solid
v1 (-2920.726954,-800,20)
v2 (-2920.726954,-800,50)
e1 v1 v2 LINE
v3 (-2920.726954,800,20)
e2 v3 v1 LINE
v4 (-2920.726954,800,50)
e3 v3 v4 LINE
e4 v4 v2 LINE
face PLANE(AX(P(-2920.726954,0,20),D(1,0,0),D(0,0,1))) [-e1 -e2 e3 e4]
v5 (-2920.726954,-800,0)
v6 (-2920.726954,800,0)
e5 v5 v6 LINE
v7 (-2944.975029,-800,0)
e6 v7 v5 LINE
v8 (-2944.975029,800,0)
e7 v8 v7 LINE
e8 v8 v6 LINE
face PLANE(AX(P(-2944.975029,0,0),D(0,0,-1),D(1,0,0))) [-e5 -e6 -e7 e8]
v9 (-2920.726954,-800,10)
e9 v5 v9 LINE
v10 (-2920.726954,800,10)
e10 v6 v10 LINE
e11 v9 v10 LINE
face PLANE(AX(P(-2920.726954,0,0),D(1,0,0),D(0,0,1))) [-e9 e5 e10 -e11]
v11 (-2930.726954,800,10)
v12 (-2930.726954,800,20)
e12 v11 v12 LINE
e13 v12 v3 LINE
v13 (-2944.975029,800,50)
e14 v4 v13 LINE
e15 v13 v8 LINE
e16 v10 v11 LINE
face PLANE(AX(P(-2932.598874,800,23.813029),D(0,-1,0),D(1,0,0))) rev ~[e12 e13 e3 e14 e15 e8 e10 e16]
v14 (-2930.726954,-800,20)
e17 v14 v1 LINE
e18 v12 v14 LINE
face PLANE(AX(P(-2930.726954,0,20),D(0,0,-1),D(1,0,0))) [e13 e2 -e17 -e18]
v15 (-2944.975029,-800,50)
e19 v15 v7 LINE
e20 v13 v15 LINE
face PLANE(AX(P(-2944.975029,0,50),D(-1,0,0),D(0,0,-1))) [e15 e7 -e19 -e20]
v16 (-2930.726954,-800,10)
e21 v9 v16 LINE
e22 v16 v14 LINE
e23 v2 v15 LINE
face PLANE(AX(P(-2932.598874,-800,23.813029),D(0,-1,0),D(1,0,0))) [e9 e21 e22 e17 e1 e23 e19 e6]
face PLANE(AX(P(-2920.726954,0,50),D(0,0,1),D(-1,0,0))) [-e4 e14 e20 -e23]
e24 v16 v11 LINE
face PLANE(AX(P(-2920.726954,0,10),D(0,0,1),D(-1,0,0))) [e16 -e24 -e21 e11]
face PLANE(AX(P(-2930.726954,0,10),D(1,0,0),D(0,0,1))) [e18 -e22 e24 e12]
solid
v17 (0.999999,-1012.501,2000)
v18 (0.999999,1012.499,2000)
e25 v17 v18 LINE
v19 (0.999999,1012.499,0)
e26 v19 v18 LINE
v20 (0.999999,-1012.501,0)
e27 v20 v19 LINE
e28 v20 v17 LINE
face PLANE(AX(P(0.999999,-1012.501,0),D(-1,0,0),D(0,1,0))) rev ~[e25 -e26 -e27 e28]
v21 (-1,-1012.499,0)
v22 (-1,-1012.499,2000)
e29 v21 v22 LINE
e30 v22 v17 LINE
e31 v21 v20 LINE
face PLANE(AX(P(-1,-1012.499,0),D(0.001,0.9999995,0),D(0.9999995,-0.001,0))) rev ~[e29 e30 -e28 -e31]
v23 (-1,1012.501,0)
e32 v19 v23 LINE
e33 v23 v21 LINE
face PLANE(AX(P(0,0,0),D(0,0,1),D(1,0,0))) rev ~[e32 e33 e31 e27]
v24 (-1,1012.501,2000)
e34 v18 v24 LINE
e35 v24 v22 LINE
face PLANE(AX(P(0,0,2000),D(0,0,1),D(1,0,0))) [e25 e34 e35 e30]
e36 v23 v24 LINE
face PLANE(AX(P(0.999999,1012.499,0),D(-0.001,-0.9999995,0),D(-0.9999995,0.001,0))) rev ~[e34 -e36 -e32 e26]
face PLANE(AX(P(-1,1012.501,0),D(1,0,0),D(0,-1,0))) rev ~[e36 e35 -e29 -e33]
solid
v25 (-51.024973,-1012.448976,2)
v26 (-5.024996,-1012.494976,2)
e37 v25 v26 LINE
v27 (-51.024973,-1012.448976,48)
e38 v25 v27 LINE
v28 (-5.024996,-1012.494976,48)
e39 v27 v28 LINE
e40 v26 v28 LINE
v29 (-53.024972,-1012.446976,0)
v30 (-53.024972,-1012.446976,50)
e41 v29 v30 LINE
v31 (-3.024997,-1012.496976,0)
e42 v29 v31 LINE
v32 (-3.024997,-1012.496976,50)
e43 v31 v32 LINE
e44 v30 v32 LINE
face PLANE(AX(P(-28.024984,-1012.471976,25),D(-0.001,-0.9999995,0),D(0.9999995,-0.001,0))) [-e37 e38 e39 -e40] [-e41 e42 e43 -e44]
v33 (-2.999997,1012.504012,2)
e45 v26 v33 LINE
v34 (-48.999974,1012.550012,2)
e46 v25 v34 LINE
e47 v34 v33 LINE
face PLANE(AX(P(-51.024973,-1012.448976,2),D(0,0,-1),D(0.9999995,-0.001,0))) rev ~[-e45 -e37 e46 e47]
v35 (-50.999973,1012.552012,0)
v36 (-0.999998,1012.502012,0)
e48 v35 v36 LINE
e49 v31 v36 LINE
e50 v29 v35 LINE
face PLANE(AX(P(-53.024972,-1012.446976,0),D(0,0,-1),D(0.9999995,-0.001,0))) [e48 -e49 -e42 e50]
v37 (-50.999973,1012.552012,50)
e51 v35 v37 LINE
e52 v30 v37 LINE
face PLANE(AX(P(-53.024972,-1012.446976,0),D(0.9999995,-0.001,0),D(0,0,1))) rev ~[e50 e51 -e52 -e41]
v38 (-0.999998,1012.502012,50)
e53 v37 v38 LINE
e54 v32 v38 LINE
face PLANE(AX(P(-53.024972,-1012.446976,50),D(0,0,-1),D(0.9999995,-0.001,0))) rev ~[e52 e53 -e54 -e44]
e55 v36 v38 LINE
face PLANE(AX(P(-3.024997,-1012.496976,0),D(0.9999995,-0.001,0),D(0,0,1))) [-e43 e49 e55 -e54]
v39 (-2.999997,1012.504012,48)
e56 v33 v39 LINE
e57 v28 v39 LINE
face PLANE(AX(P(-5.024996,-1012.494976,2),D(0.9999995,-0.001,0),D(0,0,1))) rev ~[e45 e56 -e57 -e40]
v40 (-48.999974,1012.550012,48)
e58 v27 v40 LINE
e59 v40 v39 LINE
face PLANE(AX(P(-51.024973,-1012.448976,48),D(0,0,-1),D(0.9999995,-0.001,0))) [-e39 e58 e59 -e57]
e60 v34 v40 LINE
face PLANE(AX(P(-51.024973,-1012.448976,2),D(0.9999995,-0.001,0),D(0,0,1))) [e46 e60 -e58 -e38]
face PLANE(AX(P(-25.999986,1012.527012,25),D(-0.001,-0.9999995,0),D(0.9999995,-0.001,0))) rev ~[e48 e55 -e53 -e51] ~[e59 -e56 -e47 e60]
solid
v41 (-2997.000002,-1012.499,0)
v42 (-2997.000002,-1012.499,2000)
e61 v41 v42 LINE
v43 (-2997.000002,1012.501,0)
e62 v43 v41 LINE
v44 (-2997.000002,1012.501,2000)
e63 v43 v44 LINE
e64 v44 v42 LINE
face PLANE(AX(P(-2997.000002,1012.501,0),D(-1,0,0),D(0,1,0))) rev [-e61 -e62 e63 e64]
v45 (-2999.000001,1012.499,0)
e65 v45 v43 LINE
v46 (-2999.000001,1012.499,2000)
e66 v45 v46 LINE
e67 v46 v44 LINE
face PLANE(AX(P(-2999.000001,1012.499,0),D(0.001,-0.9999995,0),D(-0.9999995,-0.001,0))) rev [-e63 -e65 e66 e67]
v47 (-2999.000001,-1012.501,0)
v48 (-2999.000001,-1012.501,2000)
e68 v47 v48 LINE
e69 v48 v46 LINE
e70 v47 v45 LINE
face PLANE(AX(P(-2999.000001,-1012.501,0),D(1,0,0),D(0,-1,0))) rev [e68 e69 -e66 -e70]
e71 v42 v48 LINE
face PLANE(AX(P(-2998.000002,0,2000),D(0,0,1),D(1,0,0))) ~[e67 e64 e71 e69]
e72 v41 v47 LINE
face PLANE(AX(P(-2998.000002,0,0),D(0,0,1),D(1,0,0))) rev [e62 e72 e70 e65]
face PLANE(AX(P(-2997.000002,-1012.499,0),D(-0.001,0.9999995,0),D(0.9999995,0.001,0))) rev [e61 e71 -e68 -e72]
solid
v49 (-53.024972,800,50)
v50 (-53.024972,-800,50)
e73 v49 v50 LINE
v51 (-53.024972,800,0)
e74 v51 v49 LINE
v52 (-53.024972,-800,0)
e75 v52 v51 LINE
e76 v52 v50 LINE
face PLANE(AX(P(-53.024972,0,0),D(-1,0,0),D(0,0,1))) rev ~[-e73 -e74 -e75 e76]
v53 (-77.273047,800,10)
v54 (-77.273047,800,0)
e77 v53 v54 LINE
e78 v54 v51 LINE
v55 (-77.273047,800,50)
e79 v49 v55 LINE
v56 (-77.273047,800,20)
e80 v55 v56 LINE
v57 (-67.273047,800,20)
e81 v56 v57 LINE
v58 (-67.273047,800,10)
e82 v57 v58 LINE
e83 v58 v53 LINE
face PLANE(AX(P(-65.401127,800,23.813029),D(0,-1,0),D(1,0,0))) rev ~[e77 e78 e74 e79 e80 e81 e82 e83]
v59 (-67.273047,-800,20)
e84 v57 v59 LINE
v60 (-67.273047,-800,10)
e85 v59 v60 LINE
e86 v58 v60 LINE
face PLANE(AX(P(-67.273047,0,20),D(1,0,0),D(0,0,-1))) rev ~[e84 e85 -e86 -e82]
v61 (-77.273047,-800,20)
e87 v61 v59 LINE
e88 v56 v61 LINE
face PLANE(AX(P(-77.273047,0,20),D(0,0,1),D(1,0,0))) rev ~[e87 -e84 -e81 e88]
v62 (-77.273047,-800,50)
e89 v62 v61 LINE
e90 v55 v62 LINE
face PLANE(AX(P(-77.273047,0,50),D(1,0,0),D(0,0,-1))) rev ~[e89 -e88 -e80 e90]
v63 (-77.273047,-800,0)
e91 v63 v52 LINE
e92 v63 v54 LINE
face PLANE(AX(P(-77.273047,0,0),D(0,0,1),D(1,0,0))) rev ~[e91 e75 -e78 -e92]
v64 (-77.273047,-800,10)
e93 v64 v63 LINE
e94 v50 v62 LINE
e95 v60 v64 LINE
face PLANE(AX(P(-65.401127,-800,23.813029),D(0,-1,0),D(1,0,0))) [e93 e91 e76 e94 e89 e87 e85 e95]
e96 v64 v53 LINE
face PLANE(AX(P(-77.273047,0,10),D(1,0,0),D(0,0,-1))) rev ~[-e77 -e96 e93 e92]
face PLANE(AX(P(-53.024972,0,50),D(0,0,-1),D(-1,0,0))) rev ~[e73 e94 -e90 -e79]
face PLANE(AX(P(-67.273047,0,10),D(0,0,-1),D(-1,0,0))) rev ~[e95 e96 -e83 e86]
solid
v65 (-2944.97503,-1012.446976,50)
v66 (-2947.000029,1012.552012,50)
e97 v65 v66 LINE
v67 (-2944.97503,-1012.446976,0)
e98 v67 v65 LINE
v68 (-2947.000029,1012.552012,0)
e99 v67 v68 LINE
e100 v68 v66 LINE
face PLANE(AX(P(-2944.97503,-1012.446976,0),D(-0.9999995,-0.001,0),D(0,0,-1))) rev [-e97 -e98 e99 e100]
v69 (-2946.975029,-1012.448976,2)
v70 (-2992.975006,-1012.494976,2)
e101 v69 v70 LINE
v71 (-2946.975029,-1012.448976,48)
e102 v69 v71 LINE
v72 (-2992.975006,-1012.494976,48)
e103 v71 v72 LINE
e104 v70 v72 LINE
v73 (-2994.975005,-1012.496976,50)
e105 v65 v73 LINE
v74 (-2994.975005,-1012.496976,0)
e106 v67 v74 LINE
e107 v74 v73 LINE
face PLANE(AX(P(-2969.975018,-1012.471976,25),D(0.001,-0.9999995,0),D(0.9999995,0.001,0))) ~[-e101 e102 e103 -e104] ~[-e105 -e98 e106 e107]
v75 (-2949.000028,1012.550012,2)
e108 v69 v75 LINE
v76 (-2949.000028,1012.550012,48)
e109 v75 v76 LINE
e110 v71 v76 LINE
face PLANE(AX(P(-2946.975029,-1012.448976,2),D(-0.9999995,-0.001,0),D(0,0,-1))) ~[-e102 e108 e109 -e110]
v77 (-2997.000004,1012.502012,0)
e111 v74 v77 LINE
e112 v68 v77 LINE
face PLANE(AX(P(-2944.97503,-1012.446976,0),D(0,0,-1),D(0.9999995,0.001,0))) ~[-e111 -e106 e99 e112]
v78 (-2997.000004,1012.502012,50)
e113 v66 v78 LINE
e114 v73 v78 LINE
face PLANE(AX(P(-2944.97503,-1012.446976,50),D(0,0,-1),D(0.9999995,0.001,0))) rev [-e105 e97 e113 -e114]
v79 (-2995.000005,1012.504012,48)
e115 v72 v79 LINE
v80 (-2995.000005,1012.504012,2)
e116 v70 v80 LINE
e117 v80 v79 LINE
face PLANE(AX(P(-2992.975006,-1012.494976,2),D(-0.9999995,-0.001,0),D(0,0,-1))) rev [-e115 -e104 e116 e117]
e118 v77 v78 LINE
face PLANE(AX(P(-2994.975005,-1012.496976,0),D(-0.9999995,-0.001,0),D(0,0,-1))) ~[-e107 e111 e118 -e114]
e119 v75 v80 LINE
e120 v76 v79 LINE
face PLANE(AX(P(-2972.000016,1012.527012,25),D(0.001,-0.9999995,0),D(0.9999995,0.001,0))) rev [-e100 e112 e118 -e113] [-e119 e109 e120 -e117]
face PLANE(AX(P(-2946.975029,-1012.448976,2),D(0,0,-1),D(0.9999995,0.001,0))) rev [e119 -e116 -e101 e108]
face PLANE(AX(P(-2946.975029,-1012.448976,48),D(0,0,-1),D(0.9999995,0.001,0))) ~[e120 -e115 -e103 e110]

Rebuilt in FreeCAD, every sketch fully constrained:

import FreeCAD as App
import Part
import Sketcher

doc = App.newDocument("Part")
params = doc.addObject("Spreadsheet::Sheet", "Params")
for row, (alias, value) in enumerate([
    ("sketch1_height", "2025 mm"),
    ("sketch1_length", "2 mm"),
    ("pad1_length", "2000 mm"),
    ("sketch2_width", "50 mm"),
    ("sketch2_width2", "46 mm"),
    ("pad2_length", "2025 mm"),
    ("sketch3_width", "10 mm"),
    ("sketch3_height", "50 mm"),
    ("pad3_length", "1600 mm"),
], start=1):
    params.set(f"A{row}", alias)
    params.set(f"B{row}", "=" + value)
    params.setAlias(f"B{row}", alias)

body = doc.addObject("PartDesign::Body", "Body")

# Sketch on XY plane
sketch1 = body.newObject("Sketcher::SketchObject", "Sketch")
sketch1.AttachmentSupport = (doc.getObject("XY_Plane"), [""])
sketch1.MapMode = "FlatFace"
sketch1.addGeometry(Part.LineSegment(App.Vector(1, 1012.5, 0), App.Vector(-1, 1012.5, 0)), False)
sketch1.addGeometry(Part.LineSegment(App.Vector(-1, 1012.5, 0), App.Vector(-1, -1012.5, 0)), False)
sketch1.addGeometry(Part.LineSegment(App.Vector(-1, -1012.5, 0), App.Vector(1, -1012.5, 0)), False)
sketch1.addGeometry(Part.LineSegment(App.Vector(1, -1012.5, 0), App.Vector(1, 1012.5, 0)), False)
sketch1.addConstraint(Sketcher.Constraint("Coincident", 0, 2, 1, 1))
sketch1.addConstraint(Sketcher.Constraint("Coincident", 1, 2, 2, 1))
sketch1.addConstraint(Sketcher.Constraint("Coincident", 2, 2, 3, 1))
sketch1.addConstraint(Sketcher.Constraint("Coincident", 3, 2, 0, 1))
sketch1.addConstraint(Sketcher.Constraint("Vertical", 1))
sketch1.addConstraint(Sketcher.Constraint("Vertical", 3))
sketch1.addConstraint(Sketcher.Constraint("Symmetric", 0, 2, 2, 2, -1, 1))
sketch1.addConstraint(Sketcher.Constraint("Parallel", 0, 2))
sketch1.addConstraint(Sketcher.Constraint("DistanceY", 1, 2, 1, 1, 2025.0))
sketch1.addConstraint(Sketcher.Constraint("Distance", 0, 2.0))
sketch1.addConstraint(Sketcher.Constraint("DistanceY", -1, 1, 0, 2, 1012.501))
sketch1.setExpression("Constraints[8]", "Params.sketch1_height")
sketch1.setExpression("Constraints[9]", "Params.sketch1_length")
pad1 = body.newObject("PartDesign::Pad", "Pad")
pad1.Profile = sketch1
pad1.setExpression("Length", "Params.pad1_length")
body2 = doc.addObject("PartDesign::Body", "Body001")

# Sketch on an angled plane
sketch2 = body2.newObject("Sketcher::SketchObject", "Sketch001")
sketch2.Placement = App.Placement(App.Vector(-1.012499, -1012.498988, 0), App.Rotation(App.Vector(0.9999995, -0.001, 0), App.Vector(0, 0, 1), App.Vector(-0.001, -0.9999995, 0), "ZXY"))
sketch2.addGeometry(Part.LineSegment(App.Vector(-52, 50, 0), App.Vector(-52, 0, 0)), False)
sketch2.addGeometry(Part.LineSegment(App.Vector(-52, 0, 0), App.Vector(-2, 0, 0)), False)
sketch2.addGeometry(Part.LineSegment(App.Vector(-2, 0, 0), App.Vector(-2, 50, 0)), False)
sketch2.addGeometry(Part.LineSegment(App.Vector(-2, 50, 0), App.Vector(-52, 50, 0)), False)
sketch2.addGeometry(Part.LineSegment(App.Vector(-4, 2, 0), App.Vector(-50, 2, 0)), False)
sketch2.addGeometry(Part.LineSegment(App.Vector(-50, 2, 0), App.Vector(-50, 48, 0)), False)
sketch2.addGeometry(Part.LineSegment(App.Vector(-50, 48, 0), App.Vector(-4, 48, 0)), False)
sketch2.addGeometry(Part.LineSegment(App.Vector(-4, 48, 0), App.Vector(-4, 2, 0)), False)
sketch2.addConstraint(Sketcher.Constraint("Coincident", 0, 2, 1, 1))
sketch2.addConstraint(Sketcher.Constraint("Coincident", 1, 2, 2, 1))
sketch2.addConstraint(Sketcher.Constraint("Coincident", 2, 2, 3, 1))
sketch2.addConstraint(Sketcher.Constraint("Coincident", 3, 2, 0, 1))
sketch2.addConstraint(Sketcher.Constraint("Coincident", 4, 2, 5, 1))
sketch2.addConstraint(Sketcher.Constraint("Coincident", 5, 2, 6, 1))
sketch2.addConstraint(Sketcher.Constraint("Coincident", 6, 2, 7, 1))
sketch2.addConstraint(Sketcher.Constraint("Coincident", 7, 2, 4, 1))
sketch2.addConstraint(Sketcher.Constraint("Vertical", 0))
sketch2.addConstraint(Sketcher.Constraint("Horizontal", 1))
sketch2.addConstraint(Sketcher.Constraint("Vertical", 2))
sketch2.addConstraint(Sketcher.Constraint("Horizontal", 3))
sketch2.addConstraint(Sketcher.Constraint("Horizontal", 4))
sketch2.addConstraint(Sketcher.Constraint("Vertical", 5))
sketch2.addConstraint(Sketcher.Constraint("Horizontal", 6))
sketch2.addConstraint(Sketcher.Constraint("Vertical", 7))
sketch2.addConstraint(Sketcher.Constraint("PointOnObject", 0, 2, -1))
sketch2.addConstraint(Sketcher.Constraint("Equal", 3, 0))
sketch2.addConstraint(Sketcher.Constraint("Equal", 6, 5))
sketch2.addConstraint(Sketcher.Constraint("DistanceX", 1, 1, 1, 2, 50.0))
sketch2.addConstraint(Sketcher.Constraint("DistanceX", 4, 2, 4, 1, 46.0))
sketch2.addConstraint(Sketcher.Constraint("DistanceY", -1, 1, 4, 2, 2.0))
sketch2.addConstraint(Sketcher.Constraint("DistanceX", 0, 2, 4, 2, 2.0))
sketch2.addConstraint(Sketcher.Constraint("DistanceX", 0, 2, -1, 1, 52.012499))
sketch2.setExpression("Constraints[19]", "Params.sketch2_width")
sketch2.setExpression("Constraints[20]", "Params.sketch2_width2")
pad2 = body2.newObject("PartDesign::Pad", "Pad001")
pad2.Profile = sketch2
pad2.setExpression("Length", "Params.pad2_length")
pad2.Reversed = True
body3 = doc.addObject("PartDesign::Body", "Body002")
doc.recompute()

mirroring = doc.addObject("Part::Mirroring", "Mirroring")
mirroring.Source = body
mirroring.Base = App.Vector(-1499.000001, -0.001, 1000)
mirroring.Normal = App.Vector(1, 0, 0)
body3.BaseFeature = mirroring
doc.recompute()
body4 = doc.addObject("PartDesign::Body", "Body003")
doc.recompute()

mirroring2 = doc.addObject("Part::Mirroring", "Mirroring001")
mirroring2.Source = body2
mirroring2.Base = App.Vector(-1499.000001, -0.001, 1000)
mirroring2.Normal = App.Vector(1, 0, 0)
body4.BaseFeature = mirroring2
doc.recompute()
body5 = doc.addObject("PartDesign::Body", "Body004")
body5.AllowCompound = True

# Sketch on XZ plane
sketch3 = body5.newObject("Sketcher::SketchObject", "Sketch002")
sketch3.AttachmentSupport = (doc.getObject("XZ_Plane004"), [""])
sketch3.MapMode = "FlatFace"
sketch3.addGeometry(Part.LineSegment(App.Vector(-53, 0, 0), App.Vector(-53, 50, 0)), False)
sketch3.addGeometry(Part.LineSegment(App.Vector(-53, 50, 0), App.Vector(-77, 50, 0)), False)
sketch3.addGeometry(Part.LineSegment(App.Vector(-77, 50, 0), App.Vector(-77, 20, 0)), False)
sketch3.addGeometry(Part.LineSegment(App.Vector(-77, 20, 0), App.Vector(-67, 20, 0)), False)
sketch3.addGeometry(Part.LineSegment(App.Vector(-67, 20, 0), App.Vector(-67, 10, 0)), False)
sketch3.addGeometry(Part.LineSegment(App.Vector(-67, 10, 0), App.Vector(-77, 10, 0)), False)
sketch3.addGeometry(Part.LineSegment(App.Vector(-77, 10, 0), App.Vector(-77, 0, 0)), False)
sketch3.addGeometry(Part.LineSegment(App.Vector(-77, 0, 0), App.Vector(-53, 0, 0)), False)
sketch3.addGeometry(Part.LineSegment(App.Vector(-2931, 10, 0), App.Vector(-2931, 20, 0)), False)
sketch3.addGeometry(Part.LineSegment(App.Vector(-2931, 20, 0), App.Vector(-2921, 20, 0)), False)
sketch3.addGeometry(Part.LineSegment(App.Vector(-2921, 20, 0), App.Vector(-2921, 50, 0)), False)
sketch3.addGeometry(Part.LineSegment(App.Vector(-2921, 50, 0), App.Vector(-2945, 50, 0)), False)
sketch3.addGeometry(Part.LineSegment(App.Vector(-2945, 50, 0), App.Vector(-2945, 0, 0)), False)
sketch3.addGeometry(Part.LineSegment(App.Vector(-2945, 0, 0), App.Vector(-2921, 0, 0)), False)
sketch3.addGeometry(Part.LineSegment(App.Vector(-2921, 0, 0), App.Vector(-2921, 10, 0)), False)
sketch3.addGeometry(Part.LineSegment(App.Vector(-2921, 10, 0), App.Vector(-2931, 10, 0)), False)
sketch3.addConstraint(Sketcher.Constraint("Coincident", 0, 2, 1, 1))
sketch3.addConstraint(Sketcher.Constraint("Coincident", 1, 2, 2, 1))
sketch3.addConstraint(Sketcher.Constraint("Coincident", 2, 2, 3, 1))
sketch3.addConstraint(Sketcher.Constraint("Coincident", 3, 2, 4, 1))
sketch3.addConstraint(Sketcher.Constraint("Coincident", 4, 2, 5, 1))
sketch3.addConstraint(Sketcher.Constraint("Coincident", 5, 2, 6, 1))
sketch3.addConstraint(Sketcher.Constraint("Coincident", 6, 2, 7, 1))
sketch3.addConstraint(Sketcher.Constraint("Coincident", 7, 2, 0, 1))
sketch3.addConstraint(Sketcher.Constraint("Coincident", 8, 2, 9, 1))
sketch3.addConstraint(Sketcher.Constraint("Coincident", 9, 2, 10, 1))
sketch3.addConstraint(Sketcher.Constraint("Coincident", 10, 2, 11, 1))
sketch3.addConstraint(Sketcher.Constraint("Coincident", 11, 2, 12, 1))
sketch3.addConstraint(Sketcher.Constraint("Coincident", 12, 2, 13, 1))
sketch3.addConstraint(Sketcher.Constraint("Coincident", 13, 2, 14, 1))
sketch3.addConstraint(Sketcher.Constraint("Coincident", 14, 2, 15, 1))
sketch3.addConstraint(Sketcher.Constraint("Coincident", 15, 2, 8, 1))
sketch3.addConstraint(Sketcher.Constraint("Vertical", 0))
sketch3.addConstraint(Sketcher.Constraint("Horizontal", 1))
sketch3.addConstraint(Sketcher.Constraint("Vertical", 2))
sketch3.addConstraint(Sketcher.Constraint("Horizontal", 3))
sketch3.addConstraint(Sketcher.Constraint("Vertical", 4))
sketch3.addConstraint(Sketcher.Constraint("Horizontal", 5))
sketch3.addConstraint(Sketcher.Constraint("Vertical", 6))
sketch3.addConstraint(Sketcher.Constraint("Horizontal", 7))
sketch3.addConstraint(Sketcher.Constraint("Vertical", 8))
sketch3.addConstraint(Sketcher.Constraint("Horizontal", 9))
sketch3.addConstraint(Sketcher.Constraint("Vertical", 10))
sketch3.addConstraint(Sketcher.Constraint("Horizontal", 11))
sketch3.addConstraint(Sketcher.Constraint("Vertical", 12))
sketch3.addConstraint(Sketcher.Constraint("Horizontal", 13))
sketch3.addConstraint(Sketcher.Constraint("Vertical", 14))
sketch3.addConstraint(Sketcher.Constraint("Horizontal", 15))
sketch3.addConstraint(Sketcher.Constraint("PointOnObject", 6, 2, -1))
sketch3.addConstraint(Sketcher.Constraint("PointOnObject", 12, 2, -1))
sketch3.addConstraint(Sketcher.Constraint("Horizontal", 3, 2, 8, 2))
sketch3.addConstraint(Sketcher.Constraint("Horizontal", 1, 2, 10, 2))
sketch3.addConstraint(Sketcher.Constraint("Horizontal", 5, 2, 14, 2))
sketch3.addConstraint(Sketcher.Constraint("Vertical", 2, 2, 5, 2))
sketch3.addConstraint(Sketcher.Constraint("Vertical", 10, 2, 13, 2))
sketch3.addConstraint(Sketcher.Constraint("Equal", 5, 9))
sketch3.addConstraint(Sketcher.Constraint("Equal", 7, 11))
sketch3.addConstraint(Sketcher.Constraint("Equal", 15, 4))
sketch3.addConstraint(Sketcher.Constraint("Equal", 4, 6))
sketch3.addConstraint(Sketcher.Constraint("DistanceX", 3, 1, 3, 2, 10.0))
sketch3.addConstraint(Sketcher.Constraint("DistanceY", 0, 1, 0, 2, 50.0))
sketch3.addConstraint(Sketcher.Constraint("DistanceX", 1, 2, 1, 1, 24.248075))
sketch3.addConstraint(Sketcher.Constraint("DistanceX", 0, 2, -1, 1, 53.024972))
sketch3.addConstraint(Sketcher.Constraint("DistanceX", 11, 2, -1, 1, 2944.975029))
sketch3.setExpression("Constraints[43]", "Params.sketch3_width")
sketch3.setExpression("Constraints[44]", "Params.sketch3_height")
pad3 = body5.newObject("PartDesign::Pad", "Pad002")
pad3.Profile = sketch3
pad3.setExpression("Length", "Params.pad3_length")
pad3.Midplane = True
mirroring.Visibility = False
mirroring2.Visibility = False

doc.recompute()
